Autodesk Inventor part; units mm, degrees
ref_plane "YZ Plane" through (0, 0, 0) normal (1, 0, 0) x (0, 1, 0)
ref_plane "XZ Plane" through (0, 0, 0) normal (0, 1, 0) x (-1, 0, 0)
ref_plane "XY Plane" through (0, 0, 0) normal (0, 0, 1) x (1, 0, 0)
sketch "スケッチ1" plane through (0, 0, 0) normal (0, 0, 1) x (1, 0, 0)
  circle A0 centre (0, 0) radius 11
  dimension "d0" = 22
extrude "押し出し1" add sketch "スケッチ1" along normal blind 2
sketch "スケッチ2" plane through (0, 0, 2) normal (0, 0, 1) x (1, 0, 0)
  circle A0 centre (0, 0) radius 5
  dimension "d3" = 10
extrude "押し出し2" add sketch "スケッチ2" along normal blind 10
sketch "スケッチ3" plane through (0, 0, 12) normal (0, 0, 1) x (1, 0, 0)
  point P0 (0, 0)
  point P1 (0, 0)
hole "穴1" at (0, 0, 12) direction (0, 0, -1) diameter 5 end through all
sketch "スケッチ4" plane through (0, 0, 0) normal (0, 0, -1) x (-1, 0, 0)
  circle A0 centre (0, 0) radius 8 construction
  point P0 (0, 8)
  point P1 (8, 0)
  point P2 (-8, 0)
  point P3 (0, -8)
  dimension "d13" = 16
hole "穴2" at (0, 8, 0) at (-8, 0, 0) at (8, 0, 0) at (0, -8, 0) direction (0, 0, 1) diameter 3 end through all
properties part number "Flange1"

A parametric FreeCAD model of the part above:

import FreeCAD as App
import Part
import Sketcher

V = App.Vector

doc = App.newDocument("Part")
body = doc.addObject("PartDesign::Body", "Body")

sketch1 = body.newObject("Sketcher::SketchObject", "Sketch")
sketch1.AttachmentSupport = (doc.getObject("XY_Plane"), [""])
sketch1.MapMode = "FlatFace"
sketch1.addGeometry(Part.Circle(V(0, 0, 0), V(0, 0, 1), 11), False)
sketch1.addConstraint([
    Sketcher.Constraint("Coincident", 0, 3, -1, 1),
    Sketcher.Constraint("Diameter", 0, 22.0),
])
pad1 = body.newObject("PartDesign::Pad", "Pad")
pad1.Profile = sketch1
pad1.Length = 2

sketch2 = body.newObject("Sketcher::SketchObject", "Sketch001")
sketch2.AttachmentSupport = (doc.getObject("XY_Plane"), [""])
sketch2.MapMode = "FlatFace"
sketch2.AttachmentOffset = App.Placement(V(0, 0, 2), App.Rotation())
sketch2.addGeometry(Part.Circle(V(0, 0, 0), V(0, 0, 1), 5), False)
sketch2.addConstraint([
    Sketcher.Constraint("Coincident", 0, 3, -1, 1),
    Sketcher.Constraint("Diameter", 0, 10.0),
])
pad2 = body.newObject("PartDesign::Pad", "Pad001")
pad2.Profile = sketch2
pad2.Length = 10

sketch3 = body.newObject("Sketcher::SketchObject", "Sketch002")
sketch3.AttachmentSupport = (doc.getObject("XY_Plane"), [""])
sketch3.MapMode = "FlatFace"
sketch3.AttachmentOffset = App.Placement(V(0, 0, 12), App.Rotation())
sketch3.addGeometry(Part.Circle(V(0, 0, 0), V(0, 0, 1), 2.5), False)
sketch3.addConstraint([
    Sketcher.Constraint("Coincident", 0, 3, -1, 1),
    Sketcher.Constraint("Diameter", 0, 5.0),
])
doc.recompute()
hole = body.newObject("PartDesign::Hole", "Hole")
hole.Profile = sketch3
hole.ThreadType = "None"
hole.Diameter = 5
hole.DepthType = "ThroughAll"

sketch4 = body.newObject("Sketcher::SketchObject", "Sketch003")
sketch4.AttachmentSupport = (doc.getObject("XY_Plane"), [""])
sketch4.MapMode = "FlatFace"
sketch4.addGeometry([
    Part.Circle(V(0, 8, 0), V(0, 0, 1), 1.5),
    Part.Circle(V(-8, 0, 0), V(0, 0, 1), 1.5),
    Part.Circle(V(8, 0, 0), V(0, 0, 1), 1.5),
    Part.Circle(V(0, -8, 0), V(0, 0, 1), 1.5),
], False)
sketch4.addConstraint([
    Sketcher.Constraint("Equal", 0, 1),
    Sketcher.Constraint("Equal", 1, 2),
    Sketcher.Constraint("Equal", 2, 3),
    Sketcher.Constraint("Symmetric", 1, 3, 2, 3, -1, 1),
    Sketcher.Constraint("Symmetric", 0, 3, 3, 3, -1, 1),
    Sketcher.Constraint("PointOnObject", 0, 3, -2),
    Sketcher.Constraint("PointOnObject", 1, 3, -1),
    Sketcher.Constraint("Diameter", 0, 3.0),
    Sketcher.Constraint("DistanceY", -1, 1, 0, 3, 8.0),
    Sketcher.Constraint("DistanceX", 1, 3, -1, 1, 8.0),
])
doc.recompute()
hole2 = body.newObject("PartDesign::Hole", "Hole001")
hole2.Profile = sketch4
hole2.ThreadType = "None"
hole2.Diameter = 3
hole2.DepthType = "ThroughAll"
hole2.Reversed = True

doc.recompute()
